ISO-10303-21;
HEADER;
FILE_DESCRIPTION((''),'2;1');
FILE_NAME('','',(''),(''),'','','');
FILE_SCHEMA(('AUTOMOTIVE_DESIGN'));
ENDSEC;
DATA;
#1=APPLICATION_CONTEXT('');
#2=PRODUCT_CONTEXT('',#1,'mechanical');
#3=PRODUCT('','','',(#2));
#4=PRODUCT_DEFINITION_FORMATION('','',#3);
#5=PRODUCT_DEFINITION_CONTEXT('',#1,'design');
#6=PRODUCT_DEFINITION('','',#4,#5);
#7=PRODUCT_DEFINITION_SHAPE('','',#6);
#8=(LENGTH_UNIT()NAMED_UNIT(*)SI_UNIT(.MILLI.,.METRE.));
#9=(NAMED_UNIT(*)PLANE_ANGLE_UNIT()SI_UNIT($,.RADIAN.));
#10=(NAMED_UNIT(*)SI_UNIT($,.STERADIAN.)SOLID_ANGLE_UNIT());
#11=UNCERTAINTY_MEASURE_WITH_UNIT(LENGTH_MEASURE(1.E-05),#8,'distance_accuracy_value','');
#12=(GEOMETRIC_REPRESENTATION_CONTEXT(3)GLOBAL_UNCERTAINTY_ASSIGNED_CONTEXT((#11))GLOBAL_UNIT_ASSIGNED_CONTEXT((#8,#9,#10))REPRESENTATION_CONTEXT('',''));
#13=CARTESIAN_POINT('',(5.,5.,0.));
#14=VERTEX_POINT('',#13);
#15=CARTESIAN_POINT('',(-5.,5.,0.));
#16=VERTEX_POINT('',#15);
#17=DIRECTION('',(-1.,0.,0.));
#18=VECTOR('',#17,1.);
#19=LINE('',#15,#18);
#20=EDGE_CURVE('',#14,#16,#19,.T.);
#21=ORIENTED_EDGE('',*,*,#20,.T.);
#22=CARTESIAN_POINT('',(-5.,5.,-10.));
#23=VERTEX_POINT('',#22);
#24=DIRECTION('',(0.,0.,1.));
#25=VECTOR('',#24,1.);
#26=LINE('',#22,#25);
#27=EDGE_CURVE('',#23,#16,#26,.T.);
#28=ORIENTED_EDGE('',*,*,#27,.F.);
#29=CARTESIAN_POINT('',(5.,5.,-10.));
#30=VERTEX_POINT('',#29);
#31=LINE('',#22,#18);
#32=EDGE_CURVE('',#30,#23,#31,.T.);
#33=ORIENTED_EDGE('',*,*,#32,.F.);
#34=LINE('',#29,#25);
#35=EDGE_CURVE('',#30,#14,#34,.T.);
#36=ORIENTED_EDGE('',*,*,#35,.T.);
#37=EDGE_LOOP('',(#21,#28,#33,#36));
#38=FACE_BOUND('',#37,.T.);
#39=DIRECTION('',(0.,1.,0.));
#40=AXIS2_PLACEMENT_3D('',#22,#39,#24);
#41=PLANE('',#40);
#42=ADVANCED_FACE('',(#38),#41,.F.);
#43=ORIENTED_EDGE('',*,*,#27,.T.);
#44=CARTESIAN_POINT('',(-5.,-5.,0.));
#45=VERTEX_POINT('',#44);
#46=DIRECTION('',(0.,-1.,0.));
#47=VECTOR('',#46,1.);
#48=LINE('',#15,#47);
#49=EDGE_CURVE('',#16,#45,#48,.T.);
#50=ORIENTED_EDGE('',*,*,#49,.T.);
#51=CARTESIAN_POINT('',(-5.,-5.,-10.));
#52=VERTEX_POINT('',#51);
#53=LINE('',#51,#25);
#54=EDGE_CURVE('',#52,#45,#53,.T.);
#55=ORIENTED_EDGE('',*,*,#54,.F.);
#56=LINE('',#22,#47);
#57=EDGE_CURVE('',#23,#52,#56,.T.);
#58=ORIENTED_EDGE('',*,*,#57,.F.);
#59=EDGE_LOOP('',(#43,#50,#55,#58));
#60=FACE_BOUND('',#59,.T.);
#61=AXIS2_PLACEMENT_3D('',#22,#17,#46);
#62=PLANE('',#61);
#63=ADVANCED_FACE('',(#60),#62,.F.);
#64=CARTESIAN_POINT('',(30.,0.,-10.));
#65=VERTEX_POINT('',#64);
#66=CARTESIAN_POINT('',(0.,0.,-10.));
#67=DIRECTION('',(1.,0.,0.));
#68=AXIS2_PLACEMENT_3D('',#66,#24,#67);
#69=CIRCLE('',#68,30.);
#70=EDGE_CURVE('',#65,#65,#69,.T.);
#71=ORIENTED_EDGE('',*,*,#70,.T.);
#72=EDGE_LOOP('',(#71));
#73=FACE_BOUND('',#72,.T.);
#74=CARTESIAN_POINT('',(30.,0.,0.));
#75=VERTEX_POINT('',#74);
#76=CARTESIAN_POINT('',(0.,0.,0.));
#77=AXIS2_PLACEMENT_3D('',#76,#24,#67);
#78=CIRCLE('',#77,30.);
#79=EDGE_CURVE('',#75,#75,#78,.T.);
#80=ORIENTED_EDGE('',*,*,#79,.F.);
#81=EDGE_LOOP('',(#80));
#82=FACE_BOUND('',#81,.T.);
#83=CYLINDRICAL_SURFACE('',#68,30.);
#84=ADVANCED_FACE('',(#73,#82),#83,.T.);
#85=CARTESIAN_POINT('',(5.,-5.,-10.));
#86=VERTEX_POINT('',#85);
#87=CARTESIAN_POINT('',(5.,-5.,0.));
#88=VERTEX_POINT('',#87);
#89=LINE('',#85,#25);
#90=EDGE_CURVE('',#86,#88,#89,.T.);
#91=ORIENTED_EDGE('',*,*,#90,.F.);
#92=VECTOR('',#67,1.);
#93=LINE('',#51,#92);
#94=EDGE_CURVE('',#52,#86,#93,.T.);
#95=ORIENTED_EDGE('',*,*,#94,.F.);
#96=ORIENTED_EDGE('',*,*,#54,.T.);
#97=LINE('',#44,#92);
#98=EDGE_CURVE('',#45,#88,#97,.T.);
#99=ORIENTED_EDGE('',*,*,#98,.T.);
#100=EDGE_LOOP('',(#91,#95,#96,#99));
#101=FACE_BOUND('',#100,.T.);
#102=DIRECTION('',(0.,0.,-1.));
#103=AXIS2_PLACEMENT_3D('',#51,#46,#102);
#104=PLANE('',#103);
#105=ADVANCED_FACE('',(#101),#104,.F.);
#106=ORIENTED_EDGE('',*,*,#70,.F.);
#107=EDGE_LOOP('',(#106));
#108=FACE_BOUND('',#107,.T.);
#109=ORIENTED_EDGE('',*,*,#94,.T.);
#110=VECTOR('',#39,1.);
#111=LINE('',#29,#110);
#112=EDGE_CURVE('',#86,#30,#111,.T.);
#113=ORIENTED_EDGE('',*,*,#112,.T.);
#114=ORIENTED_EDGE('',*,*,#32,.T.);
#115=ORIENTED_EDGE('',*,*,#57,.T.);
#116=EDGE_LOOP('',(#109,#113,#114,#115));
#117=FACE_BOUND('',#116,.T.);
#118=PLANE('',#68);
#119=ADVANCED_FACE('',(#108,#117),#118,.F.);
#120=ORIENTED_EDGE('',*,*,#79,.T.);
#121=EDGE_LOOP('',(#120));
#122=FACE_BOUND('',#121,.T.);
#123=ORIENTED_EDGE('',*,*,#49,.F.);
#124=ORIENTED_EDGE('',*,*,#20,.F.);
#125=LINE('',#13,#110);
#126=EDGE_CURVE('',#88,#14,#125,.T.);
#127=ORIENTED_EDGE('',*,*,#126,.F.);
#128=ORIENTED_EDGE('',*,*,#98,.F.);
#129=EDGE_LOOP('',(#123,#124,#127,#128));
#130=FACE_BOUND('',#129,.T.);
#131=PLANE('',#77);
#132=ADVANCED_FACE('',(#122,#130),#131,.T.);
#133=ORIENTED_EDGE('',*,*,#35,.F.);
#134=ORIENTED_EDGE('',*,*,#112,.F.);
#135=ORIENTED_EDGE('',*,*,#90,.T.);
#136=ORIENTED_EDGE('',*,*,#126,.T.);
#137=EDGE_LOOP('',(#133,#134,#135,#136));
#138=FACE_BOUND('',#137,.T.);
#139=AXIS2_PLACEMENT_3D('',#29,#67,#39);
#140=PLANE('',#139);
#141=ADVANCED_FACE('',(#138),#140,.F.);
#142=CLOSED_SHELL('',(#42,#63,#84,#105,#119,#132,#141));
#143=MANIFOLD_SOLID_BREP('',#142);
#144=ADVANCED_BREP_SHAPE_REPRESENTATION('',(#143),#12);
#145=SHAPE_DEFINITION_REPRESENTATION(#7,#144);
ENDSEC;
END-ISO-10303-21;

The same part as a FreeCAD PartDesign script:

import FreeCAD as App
import Part
import Sketcher


def add_polygon(sketch, points):
    """Adds a closed chain of lines whose ends are joined by coincident constraints."""
    first, n = sketch.GeometryCount, len(points)
    for a, b in zip(points, points[1:] + points[:1]):
        sketch.addGeometry(Part.LineSegment(App.Vector(*a, 0), App.Vector(*b, 0)), False)
    for i in range(n):
        sketch.addConstraint(Sketcher.Constraint("Coincident", first + i, 2, first + (i + 1) % n, 1))

doc = App.newDocument("Part")
body = doc.addObject("PartDesign::Body", "Body")

# Sketch on XY plane
sketch1 = body.newObject("Sketcher::SketchObject", "Sketch")
sketch1.AttachmentSupport = (doc.getObject("XY_Plane"), [""])
sketch1.MapMode = "FlatFace"
sketch1.addGeometry(Part.Circle(App.Vector(0, 0, 0), App.Vector(0, 0, 1), 30), False)
sketch1.addConstraint(Sketcher.Constraint("Coincident", 0, 3, -1, 1))
sketch1.addConstraint(Sketcher.Constraint("Diameter", 0, 60.0))
pad1 = body.newObject("PartDesign::Pad", "Pad")
pad1.Profile = sketch1
pad1.Length = 10
pad1.Reversed = True

# Sketch on XY plane
sketch2 = body.newObject("Sketcher::SketchObject", "Sketch001")
sketch2.AttachmentSupport = (doc.getObject("XY_Plane"), [""])
sketch2.MapMode = "FlatFace"
add_polygon(sketch2, [(-5, 5), (-5, -5), (5, -5), (5, 5)])  # lines 0-3
sketch2.addConstraint(Sketcher.Constraint("Vertical", 0))
sketch2.addConstraint(Sketcher.Constraint("Horizontal", 1))
sketch2.addConstraint(Sketcher.Constraint("Vertical", 2))
sketch2.addConstraint(Sketcher.Constraint("Horizontal", 3))
sketch2.addConstraint(Sketcher.Constraint("Symmetric", 0, 2, 2, 2, -1, 1))
sketch2.addConstraint(Sketcher.Constraint("Equal", 3, 0))
sketch2.addConstraint(Sketcher.Constraint("DistanceX", 1, 1, 1, 2, 10.0))
pocket1 = body.newObject("PartDesign::Pocket", "Pocket")
pocket1.Profile = sketch2
pocket1.Type = "ThroughAll"

doc.recompute()
